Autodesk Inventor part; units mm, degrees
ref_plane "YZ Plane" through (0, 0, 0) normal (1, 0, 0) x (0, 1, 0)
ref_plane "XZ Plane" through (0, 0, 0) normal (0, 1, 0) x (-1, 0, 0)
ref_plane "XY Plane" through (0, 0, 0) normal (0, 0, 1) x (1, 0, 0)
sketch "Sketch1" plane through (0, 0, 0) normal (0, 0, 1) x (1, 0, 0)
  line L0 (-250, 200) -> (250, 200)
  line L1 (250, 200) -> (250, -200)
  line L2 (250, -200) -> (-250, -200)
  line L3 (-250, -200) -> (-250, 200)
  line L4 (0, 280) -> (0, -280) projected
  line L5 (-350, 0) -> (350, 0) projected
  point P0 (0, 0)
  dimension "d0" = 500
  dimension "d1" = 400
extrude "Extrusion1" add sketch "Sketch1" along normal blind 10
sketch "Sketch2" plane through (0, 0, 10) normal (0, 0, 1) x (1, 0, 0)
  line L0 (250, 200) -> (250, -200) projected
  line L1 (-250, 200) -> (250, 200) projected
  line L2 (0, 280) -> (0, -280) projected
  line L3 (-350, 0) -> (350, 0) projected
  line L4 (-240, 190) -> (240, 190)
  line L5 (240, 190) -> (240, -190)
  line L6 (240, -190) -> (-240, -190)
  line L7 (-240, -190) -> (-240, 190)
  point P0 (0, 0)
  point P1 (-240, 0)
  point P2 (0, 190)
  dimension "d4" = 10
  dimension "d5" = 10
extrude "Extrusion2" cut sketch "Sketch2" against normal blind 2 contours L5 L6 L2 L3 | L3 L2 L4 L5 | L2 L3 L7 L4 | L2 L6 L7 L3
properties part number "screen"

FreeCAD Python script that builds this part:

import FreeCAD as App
import Part
import Sketcher
Q = App.Units.Quantity


def add_polygon(sketch, points):
    """Adds a closed chain of lines whose ends are joined by coincident constraints."""
    first, n = sketch.GeometryCount, len(points)
    for a, b in zip(points, points[1:] + points[:1]):
        sketch.addGeometry(Part.LineSegment(App.Vector(*a, 0), App.Vector(*b, 0)), False)
    for i in range(n):
        sketch.addConstraint(Sketcher.Constraint("Coincident", first + i, 2, first + (i + 1) % n, 1))

doc = App.newDocument("Part")
params = doc.addObject("Spreadsheet::Sheet", "Params")
for row, (alias, value) in enumerate([
    ("sketch1_width", "500 mm"),
    ("sketch1_height", "400 mm"),
    ("pad1_length", "10 mm"),
    ("sketch2_width", "480 mm"),
    ("sketch2_height", "380 mm"),
    ("pocket1_length", "2 mm"),
], start=1):
    params.set(f"A{row}", alias)
    params.set(f"B{row}", "=" + value)
    params.setAlias(f"B{row}", alias)

body = doc.addObject("PartDesign::Body", "Body")

sketch1 = body.newObject("Sketcher::SketchObject", "Sketch")
sketch1.AttachmentSupport = (doc.getObject("XY_Plane"), [""])
sketch1.MapMode = "FlatFace"
add_polygon(sketch1, [(-250, 200), (-250, -200), (250, -200), (250, 200)])
sketch1.addConstraint([
    Sketcher.Constraint("Vertical", 0),
    Sketcher.Constraint("Horizontal", 1),
    Sketcher.Constraint("Vertical", 2),
    Sketcher.Constraint("Horizontal", 3),
    Sketcher.Constraint("Symmetric", 0, 2, 2, 2, -1, 1),
    Sketcher.Constraint("DistanceX", 1, 1, 1, 2, Q("500 mm")),
    Sketcher.Constraint("DistanceY", 0, 2, 0, 1, Q("400 mm")),
])
sketch1.setExpression("Constraints[9]", "Params.sketch1_width")
sketch1.setExpression("Constraints[10]", "Params.sketch1_height")
pad1 = body.newObject("PartDesign::Pad", "Pad")
pad1.Profile = sketch1
pad1.setExpression("Length", "Params.pad1_length")

sketch2 = body.newObject("Sketcher::SketchObject", "Sketch001")
sketch2.AttachmentSupport = (doc.getObject("XY_Plane"), [""])
sketch2.MapMode = "FlatFace"
sketch2.AttachmentOffset = App.Placement(App.Vector(0, 0, 10), App.Rotation())
add_polygon(sketch2, [(240, -190), (240, 190), (-240, 190), (-240, -190)])
sketch2.addConstraint([
    Sketcher.Constraint("Vertical", 0),
    Sketcher.Constraint("Horizontal", 1),
    Sketcher.Constraint("Vertical", 2),
    Sketcher.Constraint("Horizontal", 3),
    Sketcher.Constraint("Symmetric", 0, 2, 2, 2, -1, 1),
    Sketcher.Constraint("DistanceX", 1, 2, 1, 1, Q("480 mm")),
    Sketcher.Constraint("DistanceY", 0, 1, 0, 2, Q("380 mm")),
])
sketch2.setExpression("Constraints[9]", "Params.sketch2_width")
sketch2.setExpression("Constraints[10]", "Params.sketch2_height")
pocket1 = body.newObject("PartDesign::Pocket", "Pocket")
pocket1.Profile = sketch2
pocket1.setExpression("Length", "Params.pocket1_length")

doc.recompute()
